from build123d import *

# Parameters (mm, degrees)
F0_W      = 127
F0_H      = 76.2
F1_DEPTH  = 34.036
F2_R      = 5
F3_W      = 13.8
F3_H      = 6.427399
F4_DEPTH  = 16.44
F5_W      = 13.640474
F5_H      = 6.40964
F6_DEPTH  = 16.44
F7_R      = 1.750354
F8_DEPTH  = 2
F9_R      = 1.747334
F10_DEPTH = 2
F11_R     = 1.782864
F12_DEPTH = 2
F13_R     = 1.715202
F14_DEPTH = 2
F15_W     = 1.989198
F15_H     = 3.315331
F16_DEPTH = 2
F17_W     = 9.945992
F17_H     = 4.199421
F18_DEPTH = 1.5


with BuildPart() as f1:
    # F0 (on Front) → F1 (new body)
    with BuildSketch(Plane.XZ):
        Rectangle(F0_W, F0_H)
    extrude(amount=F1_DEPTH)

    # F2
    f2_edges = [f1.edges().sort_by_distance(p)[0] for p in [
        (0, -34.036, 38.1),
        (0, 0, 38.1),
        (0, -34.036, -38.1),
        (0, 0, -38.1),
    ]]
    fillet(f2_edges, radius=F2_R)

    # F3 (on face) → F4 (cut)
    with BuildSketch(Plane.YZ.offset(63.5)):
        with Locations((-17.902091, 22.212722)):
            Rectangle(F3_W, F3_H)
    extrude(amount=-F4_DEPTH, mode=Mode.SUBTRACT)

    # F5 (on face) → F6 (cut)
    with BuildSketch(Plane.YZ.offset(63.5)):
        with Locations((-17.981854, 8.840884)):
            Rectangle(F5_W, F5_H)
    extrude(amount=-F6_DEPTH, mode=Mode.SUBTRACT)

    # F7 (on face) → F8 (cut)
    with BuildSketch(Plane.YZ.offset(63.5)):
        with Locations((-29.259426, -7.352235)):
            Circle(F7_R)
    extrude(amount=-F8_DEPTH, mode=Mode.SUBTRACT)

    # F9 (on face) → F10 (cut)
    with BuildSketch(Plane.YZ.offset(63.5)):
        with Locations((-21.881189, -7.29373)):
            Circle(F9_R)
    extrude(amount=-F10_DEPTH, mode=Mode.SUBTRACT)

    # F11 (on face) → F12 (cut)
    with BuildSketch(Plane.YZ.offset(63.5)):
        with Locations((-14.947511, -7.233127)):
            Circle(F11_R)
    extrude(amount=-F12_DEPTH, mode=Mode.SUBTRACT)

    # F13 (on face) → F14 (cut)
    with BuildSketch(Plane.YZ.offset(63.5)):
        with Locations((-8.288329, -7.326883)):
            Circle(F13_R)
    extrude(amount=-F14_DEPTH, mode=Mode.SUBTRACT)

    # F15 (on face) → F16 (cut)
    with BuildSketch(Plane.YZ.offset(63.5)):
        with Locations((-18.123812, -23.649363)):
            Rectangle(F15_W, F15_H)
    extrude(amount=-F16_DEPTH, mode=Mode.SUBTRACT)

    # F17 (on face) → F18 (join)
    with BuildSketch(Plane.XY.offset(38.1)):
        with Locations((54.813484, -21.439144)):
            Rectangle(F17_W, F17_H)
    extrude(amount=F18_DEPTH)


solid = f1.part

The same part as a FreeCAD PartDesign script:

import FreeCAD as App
import Part
import Sketcher
from FreeCAD import Vector


def edges_at(feature, points):
    """Names of the edges that pass closest to the given points."""
    edges = feature.Shape.Edges
    near = lambda p: min(range(len(edges)), key=lambda i: edges[i].distToShape(Part.Vertex(*p))[0])
    return sorted({f"Edge{near(p) + 1}" for p in points})


def add_polygon(sketch, points):
    """Adds a closed chain of lines whose ends are joined by coincident constraints."""
    first, n = sketch.GeometryCount, len(points)
    for a, b in zip(points, points[1:] + points[:1]):
        sketch.addGeometry(Part.LineSegment(App.Vector(*a, 0), App.Vector(*b, 0)), False)
    for i in range(n):
        sketch.addConstraint(Sketcher.Constraint("Coincident", first + i, 2, first + (i + 1) % n, 1))

doc = App.newDocument("Part")
body = doc.addObject("PartDesign::Body", "Body")

# Sketch on XZ plane
sketch1 = body.newObject("Sketcher::SketchObject", "Sketch")
sketch1.AttachmentSupport = (doc.getObject("XZ_Plane"), [""])
sketch1.MapMode = "FlatFace"
add_polygon(sketch1, [(-64, 38), (-64, -38), (64, -38), (64, 38)])  # lines 0-3
sketch1.addConstraint(Sketcher.Constraint("Vertical", 0))
sketch1.addConstraint(Sketcher.Constraint("Horizontal", 1))
sketch1.addConstraint(Sketcher.Constraint("Vertical", 2))
sketch1.addConstraint(Sketcher.Constraint("Horizontal", 3))
sketch1.addConstraint(Sketcher.Constraint("Symmetric", 0, 2, 2, 2, -1, 1))
sketch1.addConstraint(Sketcher.Constraint("DistanceX", 1, 1, 1, 2, 127.0))
sketch1.addConstraint(Sketcher.Constraint("DistanceY", 0, 2, 0, 1, 76.2))
pad1 = body.newObject("PartDesign::Pad", "Pad")
pad1.Profile = sketch1
pad1.Length = 34.036
doc.recompute()

fillet = body.newObject("PartDesign::Fillet", "Fillet")
fillet.Base = (pad1, edges_at(pad1, [
    (0, -34.036, 38.1),
    (0, 0, 38.1),
    (0, -34.036, -38.1),
    (0, 0, -38.1),
]))
fillet.Radius = 5

# Sketch on YZ plane
sketch2 = body.newObject("Sketcher::SketchObject", "Sketch001")
sketch2.AttachmentSupport = (doc.getObject("YZ_Plane"), [""])
sketch2.MapMode = "FlatFace"
sketch2.AttachmentOffset = App.Placement(Vector(0, 0, 63.5), App.Rotation())
add_polygon(sketch2, [(-25, 25), (-25, 19), (-11, 19), (-11, 25)])  # lines 0-3
sketch2.addConstraint(Sketcher.Constraint("Vertical", 0))
sketch2.addConstraint(Sketcher.Constraint("Horizontal", 1))
sketch2.addConstraint(Sketcher.Constraint("Vertical", 2))
sketch2.addConstraint(Sketcher.Constraint("Horizontal", 3))
sketch2.addConstraint(Sketcher.Constraint("DistanceX", 1, 1, 1, 2, 13.8))
sketch2.addConstraint(Sketcher.Constraint("DistanceY", 0, 2, 0, 1, 6.427399))
sketch2.addConstraint(Sketcher.Constraint("DistanceX", 0, 2, -1, 1, 24.802091))
sketch2.addConstraint(Sketcher.Constraint("DistanceY", -1, 1, 2, 2, 25.426422))
pocket1 = body.newObject("PartDesign::Pocket", "Pocket")
pocket1.Profile = sketch2
pocket1.Length = 16.44

# Sketch on YZ plane
sketch3 = body.newObject("Sketcher::SketchObject", "Sketch002")
sketch3.AttachmentSupport = (doc.getObject("YZ_Plane"), [""])
sketch3.MapMode = "FlatFace"
sketch3.AttachmentOffset = App.Placement(Vector(0, 0, 63.5), App.Rotation())
add_polygon(sketch3, [(-25, 12), (-25, 6), (-11, 6), (-11, 12)])  # lines 0-3
sketch3.addConstraint(Sketcher.Constraint("Vertical", 0))
sketch3.addConstraint(Sketcher.Constraint("Horizontal", 1))
sketch3.addConstraint(Sketcher.Constraint("Vertical", 2))
sketch3.addConstraint(Sketcher.Constraint("Horizontal", 3))
sketch3.addConstraint(Sketcher.Constraint("DistanceY", 0, 2, 0, 1, 6.40964))
sketch3.addConstraint(Sketcher.Constraint("DistanceX", 1, 1, 1, 2, 13.640474))
sketch3.addConstraint(Sketcher.Constraint("DistanceX", 0, 2, -1, 1, 24.802091))
sketch3.addConstraint(Sketcher.Constraint("DistanceY", -1, 1, 0, 2, 5.636064))
pocket2 = body.newObject("PartDesign::Pocket", "Pocket001")
pocket2.Profile = sketch3
pocket2.Length = 16.44

# Sketch on YZ plane
sketch4 = body.newObject("Sketcher::SketchObject", "Sketch003")
sketch4.AttachmentSupport = (doc.getObject("YZ_Plane"), [""])
sketch4.MapMode = "FlatFace"
sketch4.AttachmentOffset = App.Placement(Vector(0, 0, 63.5), App.Rotation())
sketch4.addGeometry(Part.Circle(Vector(-29.3, -7.4, 0), Vector(0, 0, 1), 1.8), False)
sketch4.addConstraint(Sketcher.Constraint("Diameter", 0, 3.500708))
sketch4.addConstraint(Sketcher.Constraint("DistanceX", 0, 3, -1, 1, 29.259426))
sketch4.addConstraint(Sketcher.Constraint("DistanceY", 0, 3, -1, 1, 7.352235))
pocket3 = body.newObject("PartDesign::Pocket", "Pocket002")
pocket3.Profile = sketch4
pocket3.Length = 2

# Sketch on YZ plane
sketch5 = body.newObject("Sketcher::SketchObject", "Sketch004")
sketch5.AttachmentSupport = (doc.getObject("YZ_Plane"), [""])
sketch5.MapMode = "FlatFace"
sketch5.AttachmentOffset = App.Placement(Vector(0, 0, 63.5), App.Rotation())
sketch5.addGeometry(Part.Circle(Vector(-21.9, -7.3, 0), Vector(0, 0, 1), 1.7), False)
sketch5.addConstraint(Sketcher.Constraint("Diameter", 0, 3.494668))
sketch5.addConstraint(Sketcher.Constraint("DistanceX", 0, 3, -1, 1, 21.881189))
sketch5.addConstraint(Sketcher.Constraint("DistanceY", 0, 3, -1, 1, 7.29373))
pocket4 = body.newObject("PartDesign::Pocket", "Pocket003")
pocket4.Profile = sketch5
pocket4.Length = 2

# Sketch on YZ plane
sketch6 = body.newObject("Sketcher::SketchObject", "Sketch005")
sketch6.AttachmentSupport = (doc.getObject("YZ_Plane"), [""])
sketch6.MapMode = "FlatFace"
sketch6.AttachmentOffset = App.Placement(Vector(0, 0, 63.5), App.Rotation())
sketch6.addGeometry(Part.Circle(Vector(-14.9, -7.2, 0), Vector(0, 0, 1), 1.8), False)
sketch6.addConstraint(Sketcher.Constraint("Diameter", 0, 3.565728))
sketch6.addConstraint(Sketcher.Constraint("DistanceX", 0, 3, -1, 1, 14.947511))
sketch6.addConstraint(Sketcher.Constraint("DistanceY", 0, 3, -1, 1, 7.233127))
pocket5 = body.newObject("PartDesign::Pocket", "Pocket004")
pocket5.Profile = sketch6
pocket5.Length = 2

# Sketch on YZ plane
sketch7 = body.newObject("Sketcher::SketchObject", "Sketch006")
sketch7.AttachmentSupport = (doc.getObject("YZ_Plane"), [""])
sketch7.MapMode = "FlatFace"
sketch7.AttachmentOffset = App.Placement(Vector(0, 0, 63.5), App.Rotation())
sketch7.addGeometry(Part.Circle(Vector(-8.3, -7.3, 0), Vector(0, 0, 1), 1.7), False)
sketch7.addConstraint(Sketcher.Constraint("Diameter", 0, 3.430404))
sketch7.addConstraint(Sketcher.Constraint("DistanceX", 0, 3, -1, 1, 8.288329))
sketch7.addConstraint(Sketcher.Constraint("DistanceY", 0, 3, -1, 1, 7.326883))
pocket6 = body.newObject("PartDesign::Pocket", "Pocket005")
pocket6.Profile = sketch7
pocket6.Length = 2

# Sketch on YZ plane
sketch8 = body.newObject("Sketcher::SketchObject", "Sketch007")
sketch8.AttachmentSupport = (doc.getObject("YZ_Plane"), [""])
sketch8.MapMode = "FlatFace"
sketch8.AttachmentOffset = App.Placement(Vector(0, 0, 63.5), App.Rotation())
add_polygon(sketch8, [(-19.1, -22), (-19.1, -25.3), (-17.1, -25.3), (-17.1, -22)])  # lines 0-3
sketch8.addConstraint(Sketcher.Constraint("Vertical", 0))
sketch8.addConstraint(Sketcher.Constraint("Horizontal", 1))
sketch8.addConstraint(Sketcher.Constraint("Vertical", 2))
sketch8.addConstraint(Sketcher.Constraint("Horizontal", 3))
sketch8.addConstraint(Sketcher.Constraint("DistanceY", 0, 2, 0, 1, 3.315331))
sketch8.addConstraint(Sketcher.Constraint("DistanceX", 1, 1, 1, 2, 1.989198))
sketch8.addConstraint(Sketcher.Constraint("DistanceX", 0, 2, -1, 1, 19.118411))
sketch8.addConstraint(Sketcher.Constraint("DistanceY", 0, 2, -1, 1, 25.307029))
pocket7 = body.newObject("PartDesign::Pocket", "Pocket006")
pocket7.Profile = sketch8
pocket7.Length = 2

# Sketch on XY plane
sketch9 = body.newObject("Sketcher::SketchObject", "Sketch008")
sketch9.AttachmentSupport = (doc.getObject("XY_Plane"), [""])
sketch9.MapMode = "FlatFace"
sketch9.AttachmentOffset = App.Placement(Vector(0, 0, 38.1), App.Rotation())
add_polygon(sketch9, [(49.8, -19.3), (49.8, -23.5), (59.8, -23.5), (59.8, -19.3)])  # lines 0-3
sketch9.addConstraint(Sketcher.Constraint("Vertical", 0))
sketch9.addConstraint(Sketcher.Constraint("Horizontal", 1))
sketch9.addConstraint(Sketcher.Constraint("Vertical", 2))
sketch9.addConstraint(Sketcher.Constraint("Horizontal", 3))
sketch9.addConstraint(Sketcher.Constraint("DistanceX", 1, 1, 1, 2, 9.945992))
sketch9.addConstraint(Sketcher.Constraint("DistanceY", 0, 2, 0, 1, 4.199421))
sketch9.addConstraint(Sketcher.Constraint("DistanceX", -1, 1, 1, 2, 59.78648))
sketch9.addConstraint(Sketcher.Constraint("DistanceY", 0, 2, -1, 1, 23.538854))
pad2 = body.newObject("PartDesign::Pad", "Pad001")
pad2.Profile = sketch9
pad2.Length = 1.5

doc.recompute()
